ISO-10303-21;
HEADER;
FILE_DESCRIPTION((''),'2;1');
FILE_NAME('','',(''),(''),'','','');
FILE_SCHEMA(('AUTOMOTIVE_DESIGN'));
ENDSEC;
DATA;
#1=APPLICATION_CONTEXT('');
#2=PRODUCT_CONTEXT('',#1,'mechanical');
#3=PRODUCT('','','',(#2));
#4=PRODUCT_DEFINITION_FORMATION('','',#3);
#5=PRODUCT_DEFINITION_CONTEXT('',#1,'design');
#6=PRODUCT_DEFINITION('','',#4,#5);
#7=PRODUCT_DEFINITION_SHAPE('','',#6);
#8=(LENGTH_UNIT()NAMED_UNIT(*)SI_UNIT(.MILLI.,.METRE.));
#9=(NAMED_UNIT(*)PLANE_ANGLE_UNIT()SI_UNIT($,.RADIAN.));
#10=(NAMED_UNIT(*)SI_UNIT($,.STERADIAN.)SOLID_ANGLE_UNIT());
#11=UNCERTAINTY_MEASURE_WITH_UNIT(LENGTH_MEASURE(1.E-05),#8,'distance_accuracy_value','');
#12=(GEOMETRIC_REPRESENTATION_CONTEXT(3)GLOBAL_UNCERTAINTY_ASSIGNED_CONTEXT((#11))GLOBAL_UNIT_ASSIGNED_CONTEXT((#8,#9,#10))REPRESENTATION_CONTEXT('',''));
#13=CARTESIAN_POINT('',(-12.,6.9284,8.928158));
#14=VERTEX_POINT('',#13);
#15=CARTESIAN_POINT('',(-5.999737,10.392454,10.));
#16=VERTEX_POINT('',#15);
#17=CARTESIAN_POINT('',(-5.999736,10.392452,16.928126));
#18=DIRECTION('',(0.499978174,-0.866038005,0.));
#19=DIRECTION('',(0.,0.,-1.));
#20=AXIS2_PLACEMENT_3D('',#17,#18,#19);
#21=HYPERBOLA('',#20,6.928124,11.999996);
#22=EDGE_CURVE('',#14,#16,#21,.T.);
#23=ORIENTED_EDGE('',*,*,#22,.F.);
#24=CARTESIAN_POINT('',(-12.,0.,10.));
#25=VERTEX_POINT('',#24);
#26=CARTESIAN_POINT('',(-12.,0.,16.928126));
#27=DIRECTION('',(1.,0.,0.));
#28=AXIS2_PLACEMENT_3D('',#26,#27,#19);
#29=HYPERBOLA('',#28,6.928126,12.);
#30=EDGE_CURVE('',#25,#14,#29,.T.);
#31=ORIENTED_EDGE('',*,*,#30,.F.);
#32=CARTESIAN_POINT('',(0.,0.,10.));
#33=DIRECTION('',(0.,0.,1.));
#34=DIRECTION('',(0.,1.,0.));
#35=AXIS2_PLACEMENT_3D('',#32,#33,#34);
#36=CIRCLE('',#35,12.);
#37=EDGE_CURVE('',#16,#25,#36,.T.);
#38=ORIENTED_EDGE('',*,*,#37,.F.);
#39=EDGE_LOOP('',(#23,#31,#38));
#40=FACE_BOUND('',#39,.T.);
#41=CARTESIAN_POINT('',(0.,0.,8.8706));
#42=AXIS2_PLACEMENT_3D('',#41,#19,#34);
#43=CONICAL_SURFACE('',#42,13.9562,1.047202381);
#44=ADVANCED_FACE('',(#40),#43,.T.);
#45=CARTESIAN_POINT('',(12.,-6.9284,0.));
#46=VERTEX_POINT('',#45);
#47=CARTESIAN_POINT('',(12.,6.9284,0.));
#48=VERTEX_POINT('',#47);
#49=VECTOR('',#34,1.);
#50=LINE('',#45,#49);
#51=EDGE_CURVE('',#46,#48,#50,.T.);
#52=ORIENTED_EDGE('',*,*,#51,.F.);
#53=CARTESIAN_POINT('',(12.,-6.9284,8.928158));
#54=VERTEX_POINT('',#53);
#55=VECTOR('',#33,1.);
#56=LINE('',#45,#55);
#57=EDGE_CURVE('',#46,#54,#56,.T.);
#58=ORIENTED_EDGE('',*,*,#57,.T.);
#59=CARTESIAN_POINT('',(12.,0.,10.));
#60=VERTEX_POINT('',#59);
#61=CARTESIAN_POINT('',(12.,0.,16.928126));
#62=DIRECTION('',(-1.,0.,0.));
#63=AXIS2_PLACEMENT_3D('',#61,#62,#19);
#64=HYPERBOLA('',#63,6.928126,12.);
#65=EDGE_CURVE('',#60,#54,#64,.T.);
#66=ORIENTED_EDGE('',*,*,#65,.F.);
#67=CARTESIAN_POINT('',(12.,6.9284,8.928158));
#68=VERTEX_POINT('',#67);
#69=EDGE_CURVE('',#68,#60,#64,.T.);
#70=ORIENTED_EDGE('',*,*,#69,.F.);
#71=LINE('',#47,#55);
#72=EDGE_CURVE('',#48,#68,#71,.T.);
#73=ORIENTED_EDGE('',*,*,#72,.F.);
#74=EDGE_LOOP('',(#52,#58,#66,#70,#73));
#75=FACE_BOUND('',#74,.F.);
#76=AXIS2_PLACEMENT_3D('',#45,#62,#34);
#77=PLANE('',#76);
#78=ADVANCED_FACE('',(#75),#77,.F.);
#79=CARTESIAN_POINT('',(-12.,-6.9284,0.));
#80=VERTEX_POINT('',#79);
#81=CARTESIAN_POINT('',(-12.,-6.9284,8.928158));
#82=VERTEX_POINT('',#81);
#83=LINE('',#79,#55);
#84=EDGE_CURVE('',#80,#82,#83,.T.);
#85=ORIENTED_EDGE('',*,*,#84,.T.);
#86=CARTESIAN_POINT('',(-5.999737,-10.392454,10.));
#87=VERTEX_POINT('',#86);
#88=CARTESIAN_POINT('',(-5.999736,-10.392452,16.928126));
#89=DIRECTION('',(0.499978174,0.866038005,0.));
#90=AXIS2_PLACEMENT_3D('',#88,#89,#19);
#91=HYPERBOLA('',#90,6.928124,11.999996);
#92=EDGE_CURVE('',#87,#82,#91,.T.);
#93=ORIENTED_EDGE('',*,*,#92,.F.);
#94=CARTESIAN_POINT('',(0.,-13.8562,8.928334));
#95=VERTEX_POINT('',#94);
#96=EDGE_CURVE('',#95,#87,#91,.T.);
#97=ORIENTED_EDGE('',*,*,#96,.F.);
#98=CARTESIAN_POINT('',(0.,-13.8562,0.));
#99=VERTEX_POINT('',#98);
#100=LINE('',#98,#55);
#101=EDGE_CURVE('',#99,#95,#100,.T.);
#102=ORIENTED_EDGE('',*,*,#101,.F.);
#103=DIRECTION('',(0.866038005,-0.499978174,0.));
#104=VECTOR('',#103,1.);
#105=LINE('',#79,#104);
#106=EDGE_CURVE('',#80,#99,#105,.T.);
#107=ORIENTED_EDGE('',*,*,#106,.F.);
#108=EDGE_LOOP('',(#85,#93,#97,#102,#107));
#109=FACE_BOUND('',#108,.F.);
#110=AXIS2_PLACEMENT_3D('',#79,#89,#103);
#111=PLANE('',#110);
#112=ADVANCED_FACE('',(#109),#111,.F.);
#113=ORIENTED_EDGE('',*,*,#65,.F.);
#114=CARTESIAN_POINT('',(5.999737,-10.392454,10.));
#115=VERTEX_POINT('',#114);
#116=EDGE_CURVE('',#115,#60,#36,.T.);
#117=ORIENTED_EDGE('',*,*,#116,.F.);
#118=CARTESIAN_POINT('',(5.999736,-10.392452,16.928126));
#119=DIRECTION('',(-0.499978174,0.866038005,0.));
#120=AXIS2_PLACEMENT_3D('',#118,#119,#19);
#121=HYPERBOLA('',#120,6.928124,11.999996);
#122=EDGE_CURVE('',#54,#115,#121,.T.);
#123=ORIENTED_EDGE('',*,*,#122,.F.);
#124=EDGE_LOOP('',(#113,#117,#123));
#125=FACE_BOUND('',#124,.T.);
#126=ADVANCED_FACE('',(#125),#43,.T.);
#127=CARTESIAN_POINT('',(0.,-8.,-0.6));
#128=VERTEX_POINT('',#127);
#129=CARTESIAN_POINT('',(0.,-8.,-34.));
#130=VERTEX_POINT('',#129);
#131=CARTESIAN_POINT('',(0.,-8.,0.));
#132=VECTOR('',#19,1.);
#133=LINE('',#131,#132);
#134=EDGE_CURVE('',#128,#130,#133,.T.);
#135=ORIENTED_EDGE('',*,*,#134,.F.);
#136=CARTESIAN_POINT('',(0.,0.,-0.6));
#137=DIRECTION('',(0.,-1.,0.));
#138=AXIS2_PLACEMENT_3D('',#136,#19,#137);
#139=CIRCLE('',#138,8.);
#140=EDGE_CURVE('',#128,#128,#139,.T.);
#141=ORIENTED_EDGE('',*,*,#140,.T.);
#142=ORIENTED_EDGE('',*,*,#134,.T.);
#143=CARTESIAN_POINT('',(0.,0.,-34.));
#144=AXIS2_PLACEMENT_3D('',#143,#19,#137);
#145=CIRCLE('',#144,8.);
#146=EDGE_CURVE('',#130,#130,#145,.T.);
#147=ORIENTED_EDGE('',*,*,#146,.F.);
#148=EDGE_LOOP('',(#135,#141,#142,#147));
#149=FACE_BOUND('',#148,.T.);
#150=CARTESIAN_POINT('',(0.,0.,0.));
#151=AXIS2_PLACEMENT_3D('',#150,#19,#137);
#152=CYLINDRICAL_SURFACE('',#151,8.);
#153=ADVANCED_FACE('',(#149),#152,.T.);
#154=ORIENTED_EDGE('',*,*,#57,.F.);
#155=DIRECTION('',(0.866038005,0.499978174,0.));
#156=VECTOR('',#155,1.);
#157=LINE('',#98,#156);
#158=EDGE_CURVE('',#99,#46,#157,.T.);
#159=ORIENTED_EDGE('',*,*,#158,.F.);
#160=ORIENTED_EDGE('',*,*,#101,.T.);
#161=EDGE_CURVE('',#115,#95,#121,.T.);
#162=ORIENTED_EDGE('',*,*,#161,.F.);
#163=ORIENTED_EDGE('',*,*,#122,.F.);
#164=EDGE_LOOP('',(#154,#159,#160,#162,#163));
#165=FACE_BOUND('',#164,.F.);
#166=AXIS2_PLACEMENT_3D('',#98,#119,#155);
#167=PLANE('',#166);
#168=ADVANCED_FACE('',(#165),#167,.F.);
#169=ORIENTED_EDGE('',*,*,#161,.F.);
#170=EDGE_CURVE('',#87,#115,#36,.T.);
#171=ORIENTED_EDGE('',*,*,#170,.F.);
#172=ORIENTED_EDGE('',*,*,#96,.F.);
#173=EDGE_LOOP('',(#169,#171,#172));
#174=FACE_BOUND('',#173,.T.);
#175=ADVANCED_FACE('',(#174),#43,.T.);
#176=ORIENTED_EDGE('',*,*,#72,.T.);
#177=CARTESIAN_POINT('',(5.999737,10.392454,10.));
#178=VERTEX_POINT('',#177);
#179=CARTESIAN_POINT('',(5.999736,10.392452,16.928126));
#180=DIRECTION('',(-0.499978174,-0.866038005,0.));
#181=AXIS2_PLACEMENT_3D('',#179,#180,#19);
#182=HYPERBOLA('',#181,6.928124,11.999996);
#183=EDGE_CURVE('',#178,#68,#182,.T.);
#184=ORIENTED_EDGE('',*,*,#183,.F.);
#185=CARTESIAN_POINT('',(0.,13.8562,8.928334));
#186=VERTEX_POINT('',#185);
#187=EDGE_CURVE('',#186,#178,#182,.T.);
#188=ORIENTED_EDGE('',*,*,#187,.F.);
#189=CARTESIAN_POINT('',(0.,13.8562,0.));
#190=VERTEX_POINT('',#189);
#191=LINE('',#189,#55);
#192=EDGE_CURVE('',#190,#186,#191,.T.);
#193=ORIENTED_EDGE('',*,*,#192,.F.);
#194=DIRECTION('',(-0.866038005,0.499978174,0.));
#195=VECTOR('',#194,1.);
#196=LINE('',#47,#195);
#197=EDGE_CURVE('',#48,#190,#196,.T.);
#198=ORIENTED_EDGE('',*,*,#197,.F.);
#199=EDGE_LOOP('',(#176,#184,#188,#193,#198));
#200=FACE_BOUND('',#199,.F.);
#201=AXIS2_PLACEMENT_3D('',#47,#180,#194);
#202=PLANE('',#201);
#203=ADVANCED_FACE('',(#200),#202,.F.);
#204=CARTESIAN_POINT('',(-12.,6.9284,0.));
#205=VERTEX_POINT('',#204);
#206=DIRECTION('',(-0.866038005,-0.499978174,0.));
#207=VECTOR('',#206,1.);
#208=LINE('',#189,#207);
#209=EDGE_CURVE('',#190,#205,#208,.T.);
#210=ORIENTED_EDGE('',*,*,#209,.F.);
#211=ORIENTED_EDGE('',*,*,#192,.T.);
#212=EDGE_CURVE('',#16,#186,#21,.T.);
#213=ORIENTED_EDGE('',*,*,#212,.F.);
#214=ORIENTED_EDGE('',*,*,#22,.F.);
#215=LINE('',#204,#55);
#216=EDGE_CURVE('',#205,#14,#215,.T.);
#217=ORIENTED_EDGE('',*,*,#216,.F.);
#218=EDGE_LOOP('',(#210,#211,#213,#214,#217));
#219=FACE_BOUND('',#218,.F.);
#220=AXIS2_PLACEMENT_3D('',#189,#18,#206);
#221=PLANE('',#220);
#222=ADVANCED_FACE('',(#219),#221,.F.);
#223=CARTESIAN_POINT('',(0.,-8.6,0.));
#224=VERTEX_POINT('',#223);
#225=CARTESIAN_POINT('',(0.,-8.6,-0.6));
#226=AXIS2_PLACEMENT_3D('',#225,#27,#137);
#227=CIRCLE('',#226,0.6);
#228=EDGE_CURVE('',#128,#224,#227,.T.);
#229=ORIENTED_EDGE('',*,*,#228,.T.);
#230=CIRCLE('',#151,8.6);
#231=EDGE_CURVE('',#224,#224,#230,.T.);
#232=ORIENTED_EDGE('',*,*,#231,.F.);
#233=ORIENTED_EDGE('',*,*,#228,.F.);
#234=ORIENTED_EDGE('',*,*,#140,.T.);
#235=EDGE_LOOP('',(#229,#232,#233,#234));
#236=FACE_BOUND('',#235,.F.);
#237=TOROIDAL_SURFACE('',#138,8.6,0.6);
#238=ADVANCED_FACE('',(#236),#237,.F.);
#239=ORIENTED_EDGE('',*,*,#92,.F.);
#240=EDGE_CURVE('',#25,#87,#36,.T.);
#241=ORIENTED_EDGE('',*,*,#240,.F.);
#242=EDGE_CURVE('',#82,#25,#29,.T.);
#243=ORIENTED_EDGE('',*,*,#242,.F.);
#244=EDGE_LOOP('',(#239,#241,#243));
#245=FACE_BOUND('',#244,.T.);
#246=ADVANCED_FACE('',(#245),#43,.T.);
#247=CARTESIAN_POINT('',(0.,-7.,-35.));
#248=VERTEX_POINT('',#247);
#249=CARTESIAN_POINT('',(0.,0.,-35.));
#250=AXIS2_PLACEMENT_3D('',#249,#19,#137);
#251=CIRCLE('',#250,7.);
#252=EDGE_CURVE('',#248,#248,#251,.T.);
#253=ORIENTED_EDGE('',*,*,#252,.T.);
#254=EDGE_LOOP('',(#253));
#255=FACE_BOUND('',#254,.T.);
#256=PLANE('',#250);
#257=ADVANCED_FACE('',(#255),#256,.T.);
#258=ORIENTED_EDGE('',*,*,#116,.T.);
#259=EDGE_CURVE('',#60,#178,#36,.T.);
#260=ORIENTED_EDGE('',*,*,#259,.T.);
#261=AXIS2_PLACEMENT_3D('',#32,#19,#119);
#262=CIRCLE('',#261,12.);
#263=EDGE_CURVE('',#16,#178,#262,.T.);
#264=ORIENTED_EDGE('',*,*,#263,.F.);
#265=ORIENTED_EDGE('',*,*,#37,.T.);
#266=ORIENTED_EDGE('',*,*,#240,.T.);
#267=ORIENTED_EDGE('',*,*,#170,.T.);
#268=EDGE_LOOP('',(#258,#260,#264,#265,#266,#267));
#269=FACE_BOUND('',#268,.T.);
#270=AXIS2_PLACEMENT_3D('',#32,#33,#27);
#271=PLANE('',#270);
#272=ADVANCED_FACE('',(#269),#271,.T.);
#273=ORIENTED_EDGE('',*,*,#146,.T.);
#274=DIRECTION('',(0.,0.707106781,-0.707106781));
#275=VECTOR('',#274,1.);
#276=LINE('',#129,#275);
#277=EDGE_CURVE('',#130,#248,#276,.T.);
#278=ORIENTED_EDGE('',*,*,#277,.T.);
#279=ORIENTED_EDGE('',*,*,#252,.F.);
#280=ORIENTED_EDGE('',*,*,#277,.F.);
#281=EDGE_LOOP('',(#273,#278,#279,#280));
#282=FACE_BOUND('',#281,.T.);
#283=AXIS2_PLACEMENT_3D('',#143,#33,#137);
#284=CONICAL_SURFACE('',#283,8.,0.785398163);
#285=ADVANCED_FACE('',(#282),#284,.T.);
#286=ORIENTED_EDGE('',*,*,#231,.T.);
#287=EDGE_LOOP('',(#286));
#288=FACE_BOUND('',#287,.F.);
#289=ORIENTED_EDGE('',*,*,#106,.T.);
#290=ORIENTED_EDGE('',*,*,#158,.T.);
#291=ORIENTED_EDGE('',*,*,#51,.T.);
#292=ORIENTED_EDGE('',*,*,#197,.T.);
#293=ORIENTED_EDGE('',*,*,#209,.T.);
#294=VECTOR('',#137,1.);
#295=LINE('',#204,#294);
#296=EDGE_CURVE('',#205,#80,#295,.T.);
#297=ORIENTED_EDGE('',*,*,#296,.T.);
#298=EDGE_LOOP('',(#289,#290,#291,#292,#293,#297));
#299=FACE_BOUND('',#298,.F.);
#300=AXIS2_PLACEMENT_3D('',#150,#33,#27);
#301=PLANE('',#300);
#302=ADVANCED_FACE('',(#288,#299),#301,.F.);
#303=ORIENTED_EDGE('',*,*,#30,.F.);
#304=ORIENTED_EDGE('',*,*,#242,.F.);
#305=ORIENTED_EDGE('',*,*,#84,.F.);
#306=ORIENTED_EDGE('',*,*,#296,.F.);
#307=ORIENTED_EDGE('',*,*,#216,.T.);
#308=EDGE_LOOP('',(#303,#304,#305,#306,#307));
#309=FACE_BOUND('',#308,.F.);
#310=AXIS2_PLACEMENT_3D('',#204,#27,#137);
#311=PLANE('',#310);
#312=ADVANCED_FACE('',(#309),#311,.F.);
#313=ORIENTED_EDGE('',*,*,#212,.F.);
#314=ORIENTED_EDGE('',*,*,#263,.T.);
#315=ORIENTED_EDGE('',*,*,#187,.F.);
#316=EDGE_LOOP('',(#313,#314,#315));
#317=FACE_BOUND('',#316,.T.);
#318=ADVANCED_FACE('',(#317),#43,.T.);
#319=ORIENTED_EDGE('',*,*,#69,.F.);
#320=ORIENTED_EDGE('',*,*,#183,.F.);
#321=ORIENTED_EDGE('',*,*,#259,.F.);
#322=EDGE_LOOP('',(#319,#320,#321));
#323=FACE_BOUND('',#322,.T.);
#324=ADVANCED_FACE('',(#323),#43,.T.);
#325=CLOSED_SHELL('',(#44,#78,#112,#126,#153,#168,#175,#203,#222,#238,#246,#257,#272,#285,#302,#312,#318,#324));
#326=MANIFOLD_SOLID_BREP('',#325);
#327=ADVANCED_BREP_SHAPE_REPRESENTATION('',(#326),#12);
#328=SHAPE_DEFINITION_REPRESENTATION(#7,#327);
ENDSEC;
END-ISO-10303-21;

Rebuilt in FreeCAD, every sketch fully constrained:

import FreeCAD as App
import Part
import Sketcher

V = App.Vector
Q = App.Units.Quantity


def edges_at(feature, points):
    """Names of the edges that pass closest to the given points."""
    edges = feature.Shape.Edges
    near = lambda p: min(range(len(edges)), key=lambda i: edges[i].distToShape(Part.Vertex(*p))[0])
    return sorted({f"Edge{near(p) + 1}" for p in points})

doc = App.newDocument("Part")
body = doc.addObject("PartDesign::Body", "Body")

# Sketch on XY plane
sketch1 = body.newObject("Sketcher::SketchObject", "Sketch")
sketch1.AttachmentSupport = (doc.getObject("XY_Plane"), [""])
sketch1.MapMode = "FlatFace"
sketch1.addGeometry(Part.LineSegment(V(0, 14, 0), V(-12, 7, 0)), False)
sketch1.addGeometry(Part.LineSegment(V(-12, 7, 0), V(-12, -7, 0)), False)
sketch1.addGeometry(Part.LineSegment(V(-12, -7, 0), V(0, -14, 0)), False)
sketch1.addGeometry(Part.LineSegment(V(0, -14, 0), V(12, -7, 0)), False)
sketch1.addGeometry(Part.LineSegment(V(12, -7, 0), V(12, 7, 0)), False)
sketch1.addGeometry(Part.LineSegment(V(12, 7, 0), V(0, 14, 0)), False)
sketch1.addConstraint(Sketcher.Constraint("Coincident", 0, 2, 1, 1))
sketch1.addConstraint(Sketcher.Constraint("Coincident", 1, 2, 2, 1))
sketch1.addConstraint(Sketcher.Constraint("Coincident", 2, 2, 3, 1))
sketch1.addConstraint(Sketcher.Constraint("Coincident", 3, 2, 4, 1))
sketch1.addConstraint(Sketcher.Constraint("Coincident", 4, 2, 5, 1))
sketch1.addConstraint(Sketcher.Constraint("Coincident", 5, 2, 0, 1))
sketch1.addConstraint(Sketcher.Constraint("Vertical", 1))
sketch1.addConstraint(Sketcher.Constraint("Vertical", 4))
sketch1.addConstraint(Sketcher.Constraint("Symmetric", 0, 2, 3, 2, -1, 1))
sketch1.addConstraint(Sketcher.Constraint("Symmetric", 2, 2, 5, 2, -1, 1))
sketch1.addConstraint(Sketcher.Constraint("PointOnObject", 2, 2, -2))
sketch1.addConstraint(Sketcher.Constraint("Parallel", 2, 5))
sketch1.addConstraint(Sketcher.Constraint("Horizontal", 1, 2, 3, 2))
sketch1.addConstraint(Sketcher.Constraint("DistanceX", 1, 2, 3, 2, 24.0))
sketch1.addConstraint(Sketcher.Constraint("DistanceY", 1, 2, 1, 1, 13.8568))
sketch1.addConstraint(Sketcher.Constraint("Distance", 0, 13.8562))
pad1 = body.newObject("PartDesign::Pad", "Pad")
pad1.Profile = sketch1
pad1.Length = 10

# Sketch on YZ plane
sketch2 = body.newObject("Sketcher::SketchObject", "Sketch001")
sketch2.AttachmentSupport = (doc.getObject("YZ_Plane"), [""])
sketch2.MapMode = "FlatFace"
sketch2.addGeometry(Part.LineSegment(V(12, 10, 0), V(14, 8.9, 0)), False)
sketch2.addGeometry(Part.LineSegment(V(14, 8.9, 0), V(14, 10, 0)), False)
sketch2.addGeometry(Part.LineSegment(V(14, 10, 0), V(12, 10, 0)), False)
sketch2.addConstraint(Sketcher.Constraint("Coincident", 0, 2, 1, 1))
sketch2.addConstraint(Sketcher.Constraint("Coincident", 1, 2, 2, 1))
sketch2.addConstraint(Sketcher.Constraint("Coincident", 2, 2, 0, 1))
sketch2.addConstraint(Sketcher.Constraint("Vertical", 1))
sketch2.addConstraint(Sketcher.Constraint("Horizontal", 2))
sketch2.addConstraint(Sketcher.Constraint("DistanceX", -1, 1, 2, 2, 12.0))
sketch2.addConstraint(Sketcher.Constraint("Angle", 0, Q("-29.9997 deg")))
sketch2.addConstraint(Sketcher.Constraint("DistanceY", -1, 1, 1, 2, 10.0))
sketch2.addConstraint(Sketcher.Constraint("DistanceX", 2, 2, 2, 1, 1.9562))
groove = body.newObject("PartDesign::Groove", "Groove")
groove.Profile = sketch2
groove.ReferenceAxis = (sketch2, ["V_Axis"])
groove.Angle = 360

# Sketch on YZ plane
sketch3 = body.newObject("Sketcher::SketchObject", "Sketch002")
sketch3.AttachmentSupport = (doc.getObject("YZ_Plane"), [""])
sketch3.MapMode = "FlatFace"
sketch3.addGeometry(Part.LineSegment(V(-8, -35, 0), V(0, -35, 0)), False)
sketch3.addGeometry(Part.LineSegment(V(0, -35, 0), V(0, 0, 0)), False)
sketch3.addGeometry(Part.LineSegment(V(0, 0, 0), V(-8, 0, 0)), False)
sketch3.addGeometry(Part.LineSegment(V(-8, 0, 0), V(-8, -35, 0)), False)
sketch3.addConstraint(Sketcher.Constraint("Coincident", 0, 2, 1, 1))
sketch3.addConstraint(Sketcher.Constraint("Coincident", 1, 2, 2, 1))
sketch3.addConstraint(Sketcher.Constraint("Coincident", 2, 2, 3, 1))
sketch3.addConstraint(Sketcher.Constraint("Coincident", 3, 2, 0, 1))
sketch3.addConstraint(Sketcher.Constraint("Horizontal", 0))
sketch3.addConstraint(Sketcher.Constraint("Vertical", 1))
sketch3.addConstraint(Sketcher.Constraint("Horizontal", 2))
sketch3.addConstraint(Sketcher.Constraint("Vertical", 3))
sketch3.addConstraint(Sketcher.Constraint("Coincident", 1, 2, -1, 1))
sketch3.addConstraint(Sketcher.Constraint("DistanceX", 0, 1, 0, 2, 8.0))
sketch3.addConstraint(Sketcher.Constraint("DistanceY", 1, 1, 1, 2, 35.0))
revolution = body.newObject("PartDesign::Revolution", "Revolution")
revolution.Profile = sketch3
revolution.ReferenceAxis = (sketch3, ["V_Axis"])
revolution.Angle = 360
doc.recompute()

chamfer = body.newObject("PartDesign::Chamfer", "Chamfer")
chamfer.Base = (revolution, edges_at(revolution, [(0, 8, -35)]))
chamfer.Size = 1
doc.recompute()

fillet = body.newObject("PartDesign::Fillet", "Fillet")
fillet.Base = (chamfer, edges_at(chamfer, [(0, 8, 0)]))
fillet.Radius = 0.6

doc.recompute()
